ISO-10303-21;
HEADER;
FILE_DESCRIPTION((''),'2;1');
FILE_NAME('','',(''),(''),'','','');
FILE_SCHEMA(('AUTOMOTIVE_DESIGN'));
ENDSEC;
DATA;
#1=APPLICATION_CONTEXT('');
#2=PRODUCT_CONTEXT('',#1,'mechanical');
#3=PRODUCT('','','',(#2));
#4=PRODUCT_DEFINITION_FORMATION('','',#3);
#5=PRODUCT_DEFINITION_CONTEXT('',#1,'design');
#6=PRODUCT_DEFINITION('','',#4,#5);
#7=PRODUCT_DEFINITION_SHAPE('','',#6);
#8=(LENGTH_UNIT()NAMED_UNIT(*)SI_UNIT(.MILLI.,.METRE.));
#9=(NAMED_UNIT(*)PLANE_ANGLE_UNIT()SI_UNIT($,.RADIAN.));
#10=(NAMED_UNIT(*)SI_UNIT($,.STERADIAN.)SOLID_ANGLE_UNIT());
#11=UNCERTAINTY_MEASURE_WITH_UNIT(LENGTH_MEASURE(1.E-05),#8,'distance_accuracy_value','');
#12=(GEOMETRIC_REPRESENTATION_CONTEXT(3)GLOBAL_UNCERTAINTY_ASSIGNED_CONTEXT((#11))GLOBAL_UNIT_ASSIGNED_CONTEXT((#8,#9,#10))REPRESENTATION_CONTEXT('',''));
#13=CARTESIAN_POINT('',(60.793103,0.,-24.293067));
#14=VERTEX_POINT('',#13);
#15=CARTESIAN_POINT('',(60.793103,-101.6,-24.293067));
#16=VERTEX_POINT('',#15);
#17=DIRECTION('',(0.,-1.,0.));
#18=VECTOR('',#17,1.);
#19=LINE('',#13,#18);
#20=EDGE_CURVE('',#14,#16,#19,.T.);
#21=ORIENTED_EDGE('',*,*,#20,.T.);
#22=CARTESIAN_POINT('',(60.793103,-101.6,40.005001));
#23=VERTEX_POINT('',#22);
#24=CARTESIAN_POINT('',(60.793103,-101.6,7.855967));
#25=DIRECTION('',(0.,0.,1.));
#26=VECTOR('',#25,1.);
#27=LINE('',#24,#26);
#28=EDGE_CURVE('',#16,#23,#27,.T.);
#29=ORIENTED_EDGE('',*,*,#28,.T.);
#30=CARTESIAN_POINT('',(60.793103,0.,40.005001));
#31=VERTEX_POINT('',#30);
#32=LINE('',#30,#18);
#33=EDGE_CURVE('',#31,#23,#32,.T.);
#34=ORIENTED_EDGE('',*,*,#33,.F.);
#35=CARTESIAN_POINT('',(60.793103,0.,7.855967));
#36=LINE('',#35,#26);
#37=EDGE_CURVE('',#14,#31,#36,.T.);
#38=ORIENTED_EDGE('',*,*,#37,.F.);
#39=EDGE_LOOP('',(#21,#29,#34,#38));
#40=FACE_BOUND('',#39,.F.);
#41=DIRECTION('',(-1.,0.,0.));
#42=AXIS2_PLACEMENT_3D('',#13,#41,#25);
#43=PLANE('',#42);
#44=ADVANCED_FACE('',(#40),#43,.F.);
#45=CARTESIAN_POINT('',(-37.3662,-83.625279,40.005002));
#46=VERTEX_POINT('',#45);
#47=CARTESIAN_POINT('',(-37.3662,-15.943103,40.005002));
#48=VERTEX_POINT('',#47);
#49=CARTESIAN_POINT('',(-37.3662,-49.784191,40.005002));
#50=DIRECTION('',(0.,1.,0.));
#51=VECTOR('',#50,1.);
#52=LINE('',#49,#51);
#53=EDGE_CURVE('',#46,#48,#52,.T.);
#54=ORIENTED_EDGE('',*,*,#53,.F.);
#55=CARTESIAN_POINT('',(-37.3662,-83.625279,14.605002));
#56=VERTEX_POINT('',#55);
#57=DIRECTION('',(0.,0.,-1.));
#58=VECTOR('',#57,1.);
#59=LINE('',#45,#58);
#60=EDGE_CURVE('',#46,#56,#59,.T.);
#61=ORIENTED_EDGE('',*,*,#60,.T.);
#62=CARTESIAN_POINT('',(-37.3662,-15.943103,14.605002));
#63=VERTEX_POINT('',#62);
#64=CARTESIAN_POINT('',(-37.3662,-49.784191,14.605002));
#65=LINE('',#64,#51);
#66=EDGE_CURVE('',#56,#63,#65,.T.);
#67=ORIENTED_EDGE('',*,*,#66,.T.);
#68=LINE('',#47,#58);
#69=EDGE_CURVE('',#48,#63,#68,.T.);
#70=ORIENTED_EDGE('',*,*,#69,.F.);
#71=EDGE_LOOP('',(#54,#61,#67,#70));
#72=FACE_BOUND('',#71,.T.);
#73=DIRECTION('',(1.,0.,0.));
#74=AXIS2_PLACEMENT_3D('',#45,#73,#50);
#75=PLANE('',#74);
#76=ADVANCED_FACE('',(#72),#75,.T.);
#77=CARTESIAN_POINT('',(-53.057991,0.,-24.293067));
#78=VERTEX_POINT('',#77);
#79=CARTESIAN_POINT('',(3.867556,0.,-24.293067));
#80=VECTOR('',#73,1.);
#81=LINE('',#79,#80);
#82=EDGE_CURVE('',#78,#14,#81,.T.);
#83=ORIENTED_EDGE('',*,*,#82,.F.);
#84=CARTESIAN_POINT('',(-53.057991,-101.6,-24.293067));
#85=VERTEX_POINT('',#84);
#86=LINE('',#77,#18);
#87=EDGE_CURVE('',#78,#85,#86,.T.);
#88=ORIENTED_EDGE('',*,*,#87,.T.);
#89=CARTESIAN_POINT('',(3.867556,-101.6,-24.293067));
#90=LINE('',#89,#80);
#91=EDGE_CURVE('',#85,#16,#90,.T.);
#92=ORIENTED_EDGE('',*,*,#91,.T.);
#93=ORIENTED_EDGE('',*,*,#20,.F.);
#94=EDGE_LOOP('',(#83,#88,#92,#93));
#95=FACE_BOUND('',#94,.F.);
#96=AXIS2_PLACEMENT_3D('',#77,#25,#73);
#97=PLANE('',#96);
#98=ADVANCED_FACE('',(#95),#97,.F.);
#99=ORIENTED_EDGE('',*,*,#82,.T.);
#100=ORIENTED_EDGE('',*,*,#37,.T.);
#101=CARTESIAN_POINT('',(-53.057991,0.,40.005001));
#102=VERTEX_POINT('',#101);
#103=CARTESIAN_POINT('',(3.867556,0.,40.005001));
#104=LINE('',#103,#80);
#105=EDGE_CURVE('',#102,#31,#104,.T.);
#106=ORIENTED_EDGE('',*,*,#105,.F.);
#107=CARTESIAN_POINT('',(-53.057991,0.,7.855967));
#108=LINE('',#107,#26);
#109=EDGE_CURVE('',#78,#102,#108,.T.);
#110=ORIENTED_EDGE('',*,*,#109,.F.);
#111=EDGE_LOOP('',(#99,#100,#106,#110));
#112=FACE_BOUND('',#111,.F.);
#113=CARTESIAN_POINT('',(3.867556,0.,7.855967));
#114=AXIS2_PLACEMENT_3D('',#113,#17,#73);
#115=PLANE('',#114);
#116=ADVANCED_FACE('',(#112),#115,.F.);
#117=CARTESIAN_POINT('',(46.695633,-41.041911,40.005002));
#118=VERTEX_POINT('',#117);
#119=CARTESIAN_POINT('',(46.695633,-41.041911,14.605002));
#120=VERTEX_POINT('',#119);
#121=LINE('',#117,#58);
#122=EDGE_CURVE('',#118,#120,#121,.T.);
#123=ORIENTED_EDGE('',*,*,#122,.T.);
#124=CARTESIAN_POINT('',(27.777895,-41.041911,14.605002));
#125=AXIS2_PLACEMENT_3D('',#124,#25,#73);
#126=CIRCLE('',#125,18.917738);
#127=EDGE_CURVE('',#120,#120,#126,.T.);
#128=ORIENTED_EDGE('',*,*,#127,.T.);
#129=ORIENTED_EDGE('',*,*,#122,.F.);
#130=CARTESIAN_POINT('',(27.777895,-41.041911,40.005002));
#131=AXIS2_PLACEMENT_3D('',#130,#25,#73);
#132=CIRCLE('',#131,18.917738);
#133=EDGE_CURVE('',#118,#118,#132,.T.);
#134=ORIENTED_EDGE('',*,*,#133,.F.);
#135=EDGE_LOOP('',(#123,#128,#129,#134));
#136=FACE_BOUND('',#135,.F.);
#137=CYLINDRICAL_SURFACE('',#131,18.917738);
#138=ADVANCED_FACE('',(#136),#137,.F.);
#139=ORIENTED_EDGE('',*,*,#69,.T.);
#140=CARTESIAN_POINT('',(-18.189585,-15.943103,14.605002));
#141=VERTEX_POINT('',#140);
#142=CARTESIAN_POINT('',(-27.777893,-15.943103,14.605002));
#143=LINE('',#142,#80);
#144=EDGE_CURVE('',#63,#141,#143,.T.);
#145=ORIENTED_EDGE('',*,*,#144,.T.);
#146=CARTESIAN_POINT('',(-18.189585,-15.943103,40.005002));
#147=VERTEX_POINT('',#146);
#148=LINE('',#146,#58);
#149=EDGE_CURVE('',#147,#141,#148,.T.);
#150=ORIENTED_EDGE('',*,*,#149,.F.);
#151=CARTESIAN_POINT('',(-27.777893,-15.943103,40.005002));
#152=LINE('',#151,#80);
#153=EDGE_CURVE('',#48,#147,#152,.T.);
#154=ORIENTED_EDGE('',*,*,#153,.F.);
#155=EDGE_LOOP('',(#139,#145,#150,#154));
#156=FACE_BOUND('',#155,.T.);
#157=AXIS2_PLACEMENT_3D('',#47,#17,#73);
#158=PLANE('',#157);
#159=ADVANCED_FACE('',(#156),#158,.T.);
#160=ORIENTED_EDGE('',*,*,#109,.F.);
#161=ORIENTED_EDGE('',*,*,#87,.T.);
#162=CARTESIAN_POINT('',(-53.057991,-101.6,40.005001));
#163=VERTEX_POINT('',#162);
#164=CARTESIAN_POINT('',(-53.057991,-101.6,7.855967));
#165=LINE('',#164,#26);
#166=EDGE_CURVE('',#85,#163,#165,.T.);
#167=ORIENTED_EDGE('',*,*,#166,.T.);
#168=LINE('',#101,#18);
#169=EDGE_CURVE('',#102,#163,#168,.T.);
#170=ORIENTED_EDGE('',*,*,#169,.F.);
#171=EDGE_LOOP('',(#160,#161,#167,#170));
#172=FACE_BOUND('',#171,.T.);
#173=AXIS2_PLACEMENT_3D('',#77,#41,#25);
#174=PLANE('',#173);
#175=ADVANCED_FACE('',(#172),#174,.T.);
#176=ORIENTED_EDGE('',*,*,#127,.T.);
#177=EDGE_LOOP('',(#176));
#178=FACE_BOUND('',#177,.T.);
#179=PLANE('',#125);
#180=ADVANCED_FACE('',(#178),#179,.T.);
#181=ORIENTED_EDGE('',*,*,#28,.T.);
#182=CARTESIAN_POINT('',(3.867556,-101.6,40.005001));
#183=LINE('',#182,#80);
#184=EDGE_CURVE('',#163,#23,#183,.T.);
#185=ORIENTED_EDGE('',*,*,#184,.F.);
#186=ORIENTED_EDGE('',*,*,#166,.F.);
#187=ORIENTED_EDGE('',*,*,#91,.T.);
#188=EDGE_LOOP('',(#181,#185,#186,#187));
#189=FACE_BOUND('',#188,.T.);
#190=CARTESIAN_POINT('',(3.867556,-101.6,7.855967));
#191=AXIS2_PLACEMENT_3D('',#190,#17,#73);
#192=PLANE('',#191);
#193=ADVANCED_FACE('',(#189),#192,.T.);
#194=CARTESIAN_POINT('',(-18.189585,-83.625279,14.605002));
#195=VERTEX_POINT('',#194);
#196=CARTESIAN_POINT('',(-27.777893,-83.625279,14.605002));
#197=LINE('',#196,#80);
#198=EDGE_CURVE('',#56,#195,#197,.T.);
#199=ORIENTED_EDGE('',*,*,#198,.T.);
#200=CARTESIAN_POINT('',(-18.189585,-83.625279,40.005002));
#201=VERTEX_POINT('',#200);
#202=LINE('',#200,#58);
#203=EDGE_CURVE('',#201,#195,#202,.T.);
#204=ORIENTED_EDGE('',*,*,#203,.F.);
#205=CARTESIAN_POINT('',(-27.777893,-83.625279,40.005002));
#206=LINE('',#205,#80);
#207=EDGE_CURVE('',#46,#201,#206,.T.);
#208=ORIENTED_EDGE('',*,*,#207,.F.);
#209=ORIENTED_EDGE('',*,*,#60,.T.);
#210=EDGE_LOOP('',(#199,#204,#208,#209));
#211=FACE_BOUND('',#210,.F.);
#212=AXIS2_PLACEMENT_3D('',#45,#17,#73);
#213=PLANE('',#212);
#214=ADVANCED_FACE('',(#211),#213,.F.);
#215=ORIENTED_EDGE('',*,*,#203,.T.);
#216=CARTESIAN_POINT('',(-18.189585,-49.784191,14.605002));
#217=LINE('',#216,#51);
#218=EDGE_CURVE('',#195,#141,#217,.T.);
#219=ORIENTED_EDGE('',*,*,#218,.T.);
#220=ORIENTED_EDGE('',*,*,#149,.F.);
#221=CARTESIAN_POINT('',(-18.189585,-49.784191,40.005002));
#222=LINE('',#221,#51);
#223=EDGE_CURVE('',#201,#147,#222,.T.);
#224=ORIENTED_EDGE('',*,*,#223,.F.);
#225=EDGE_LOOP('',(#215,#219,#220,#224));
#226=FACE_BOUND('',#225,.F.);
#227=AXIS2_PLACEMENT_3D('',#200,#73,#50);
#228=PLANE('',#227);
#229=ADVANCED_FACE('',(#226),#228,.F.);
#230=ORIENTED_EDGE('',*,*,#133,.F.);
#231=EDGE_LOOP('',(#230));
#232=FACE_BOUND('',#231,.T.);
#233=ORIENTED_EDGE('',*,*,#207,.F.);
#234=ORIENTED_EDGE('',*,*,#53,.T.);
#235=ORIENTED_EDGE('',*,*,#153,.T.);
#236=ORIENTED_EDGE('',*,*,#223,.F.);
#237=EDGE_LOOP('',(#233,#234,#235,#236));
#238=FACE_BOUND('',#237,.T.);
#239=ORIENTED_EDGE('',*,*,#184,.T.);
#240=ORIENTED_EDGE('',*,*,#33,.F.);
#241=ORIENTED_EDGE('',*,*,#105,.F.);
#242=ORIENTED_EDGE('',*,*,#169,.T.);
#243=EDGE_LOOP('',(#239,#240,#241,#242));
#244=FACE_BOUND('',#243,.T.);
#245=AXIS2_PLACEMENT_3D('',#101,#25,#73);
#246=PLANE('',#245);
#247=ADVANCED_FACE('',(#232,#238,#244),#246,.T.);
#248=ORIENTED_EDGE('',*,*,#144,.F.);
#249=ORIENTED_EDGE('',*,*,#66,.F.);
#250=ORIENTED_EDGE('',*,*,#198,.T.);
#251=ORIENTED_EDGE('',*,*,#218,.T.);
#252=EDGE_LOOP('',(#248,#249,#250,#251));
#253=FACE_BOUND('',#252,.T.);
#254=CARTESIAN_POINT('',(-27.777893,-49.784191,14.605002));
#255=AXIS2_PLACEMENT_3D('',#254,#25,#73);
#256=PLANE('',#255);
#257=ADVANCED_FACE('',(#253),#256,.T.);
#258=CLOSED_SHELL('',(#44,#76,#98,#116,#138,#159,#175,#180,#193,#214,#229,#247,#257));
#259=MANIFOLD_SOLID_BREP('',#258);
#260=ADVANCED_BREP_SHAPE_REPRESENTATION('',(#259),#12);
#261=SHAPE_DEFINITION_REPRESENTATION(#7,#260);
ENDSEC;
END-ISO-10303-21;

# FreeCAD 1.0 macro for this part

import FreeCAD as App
import Part
import Sketcher
Q = App.Units.Quantity

doc = App.newDocument("Part")
body = doc.addObject("PartDesign::Body", "Body")

sketch1 = body.newObject("Sketcher::SketchObject", "Sketch")
sketch1.AttachmentSupport = (doc.getObject("XZ_Plane"), [""])
sketch1.MapMode = "FlatFace"
sketch1.addGeometry(Part.LineSegment(App.Vector(-53, 40, 0), App.Vector(-53, -24, 0)), False)
sketch1.addGeometry(Part.LineSegment(App.Vector(-53, -24, 0), App.Vector(61, -24, 0)), False)
sketch1.addGeometry(Part.LineSegment(App.Vector(61, -24, 0), App.Vector(61, 40, 0)), False)
sketch1.addGeometry(Part.LineSegment(App.Vector(61, 40, 0), App.Vector(-53, 40, 0)), False)
sketch1.addConstraint(Sketcher.Constraint("Coincident", 0, 2, 1, 1))
sketch1.addConstraint(Sketcher.Constraint("Coincident", 1, 2, 2, 1))
sketch1.addConstraint(Sketcher.Constraint("Coincident", 2, 2, 3, 1))
sketch1.addConstraint(Sketcher.Constraint("Coincident", 3, 2, 0, 1))
sketch1.addConstraint(Sketcher.Constraint("Vertical", 0))
sketch1.addConstraint(Sketcher.Constraint("Horizontal", 1))
sketch1.addConstraint(Sketcher.Constraint("Vertical", 2))
sketch1.addConstraint(Sketcher.Constraint("Horizontal", 3))
sketch1.addConstraint(Sketcher.Constraint("DistanceY", -1, 1, 2, 2, Q("1.5750001 in")))
sketch1.addConstraint(Sketcher.Constraint("DistanceY", 0, 2, 0, 1, Q("64.298069 mm")))
sketch1.addConstraint(Sketcher.Constraint("DistanceX", 1, 1, 1, 2, Q("113.851093 mm")))
sketch1.addConstraint(Sketcher.Constraint("DistanceX", 0, 2, -1, 1, Q("53.057991 mm")))
pad1 = body.newObject("PartDesign::Pad", "Pad")
pad1.Profile = sketch1
pad1.Length = Q("4 in")

sketch2 = body.newObject("Sketcher::SketchObject", "Sketch001")
sketch2.AttachmentSupport = (doc.getObject("XY_Plane"), [""])
sketch2.MapMode = "FlatFace"
sketch2.AttachmentOffset = App.Placement(App.Vector(0, 0, 1.5750001 * 25.4), App.Rotation())
sketch2.addGeometry(Part.LineSegment(App.Vector(-37, -16, 0), App.Vector(-37, -84, 0)), False)
sketch2.addGeometry(Part.LineSegment(App.Vector(-37, -84, 0), App.Vector(-18, -84, 0)), False)
sketch2.addGeometry(Part.LineSegment(App.Vector(-18, -84, 0), App.Vector(-18, -16, 0)), False)
sketch2.addGeometry(Part.LineSegment(App.Vector(-18, -16, 0), App.Vector(-37, -16, 0)), False)
sketch2.addGeometry(Part.Circle(App.Vector(28, -41, 0), App.Vector(0, 0, 1), 19), False)
sketch2.addConstraint(Sketcher.Constraint("Coincident", 0, 2, 1, 1))
sketch2.addConstraint(Sketcher.Constraint("Coincident", 1, 2, 2, 1))
sketch2.addConstraint(Sketcher.Constraint("Coincident", 2, 2, 3, 1))
sketch2.addConstraint(Sketcher.Constraint("Coincident", 3, 2, 0, 1))
sketch2.addConstraint(Sketcher.Constraint("Vertical", 0))
sketch2.addConstraint(Sketcher.Constraint("Horizontal", 1))
sketch2.addConstraint(Sketcher.Constraint("Vertical", 2))
sketch2.addConstraint(Sketcher.Constraint("Horizontal", 3))
sketch2.addConstraint(Sketcher.Constraint("Diameter", 4, Q("37.835476 mm")))
sketch2.addConstraint(Sketcher.Constraint("DistanceX", 0, 2, -1, 1, Q("37.3662 mm")))
sketch2.addConstraint(Sketcher.Constraint("DistanceX", 1, 1, 1, 2, Q("19.176615 mm")))
sketch2.addConstraint(Sketcher.Constraint("DistanceY", 0, 2, 0, 1, Q("67.682176 mm")))
sketch2.addConstraint(Sketcher.Constraint("DistanceY", 4, 3, -1, 1, Q("41.041911 mm")))
sketch2.addConstraint(Sketcher.Constraint("DistanceY", 0, 2, -1, 1, Q("83.625279 mm")))
sketch2.addConstraint(Sketcher.Constraint("DistanceX", 1, 2, 4, 3, Q("45.967481 mm")))
pocket1 = body.newObject("PartDesign::Pocket", "Pocket")
pocket1.Profile = sketch2
pocket1.Length = Q("1 in")

doc.recompute()
